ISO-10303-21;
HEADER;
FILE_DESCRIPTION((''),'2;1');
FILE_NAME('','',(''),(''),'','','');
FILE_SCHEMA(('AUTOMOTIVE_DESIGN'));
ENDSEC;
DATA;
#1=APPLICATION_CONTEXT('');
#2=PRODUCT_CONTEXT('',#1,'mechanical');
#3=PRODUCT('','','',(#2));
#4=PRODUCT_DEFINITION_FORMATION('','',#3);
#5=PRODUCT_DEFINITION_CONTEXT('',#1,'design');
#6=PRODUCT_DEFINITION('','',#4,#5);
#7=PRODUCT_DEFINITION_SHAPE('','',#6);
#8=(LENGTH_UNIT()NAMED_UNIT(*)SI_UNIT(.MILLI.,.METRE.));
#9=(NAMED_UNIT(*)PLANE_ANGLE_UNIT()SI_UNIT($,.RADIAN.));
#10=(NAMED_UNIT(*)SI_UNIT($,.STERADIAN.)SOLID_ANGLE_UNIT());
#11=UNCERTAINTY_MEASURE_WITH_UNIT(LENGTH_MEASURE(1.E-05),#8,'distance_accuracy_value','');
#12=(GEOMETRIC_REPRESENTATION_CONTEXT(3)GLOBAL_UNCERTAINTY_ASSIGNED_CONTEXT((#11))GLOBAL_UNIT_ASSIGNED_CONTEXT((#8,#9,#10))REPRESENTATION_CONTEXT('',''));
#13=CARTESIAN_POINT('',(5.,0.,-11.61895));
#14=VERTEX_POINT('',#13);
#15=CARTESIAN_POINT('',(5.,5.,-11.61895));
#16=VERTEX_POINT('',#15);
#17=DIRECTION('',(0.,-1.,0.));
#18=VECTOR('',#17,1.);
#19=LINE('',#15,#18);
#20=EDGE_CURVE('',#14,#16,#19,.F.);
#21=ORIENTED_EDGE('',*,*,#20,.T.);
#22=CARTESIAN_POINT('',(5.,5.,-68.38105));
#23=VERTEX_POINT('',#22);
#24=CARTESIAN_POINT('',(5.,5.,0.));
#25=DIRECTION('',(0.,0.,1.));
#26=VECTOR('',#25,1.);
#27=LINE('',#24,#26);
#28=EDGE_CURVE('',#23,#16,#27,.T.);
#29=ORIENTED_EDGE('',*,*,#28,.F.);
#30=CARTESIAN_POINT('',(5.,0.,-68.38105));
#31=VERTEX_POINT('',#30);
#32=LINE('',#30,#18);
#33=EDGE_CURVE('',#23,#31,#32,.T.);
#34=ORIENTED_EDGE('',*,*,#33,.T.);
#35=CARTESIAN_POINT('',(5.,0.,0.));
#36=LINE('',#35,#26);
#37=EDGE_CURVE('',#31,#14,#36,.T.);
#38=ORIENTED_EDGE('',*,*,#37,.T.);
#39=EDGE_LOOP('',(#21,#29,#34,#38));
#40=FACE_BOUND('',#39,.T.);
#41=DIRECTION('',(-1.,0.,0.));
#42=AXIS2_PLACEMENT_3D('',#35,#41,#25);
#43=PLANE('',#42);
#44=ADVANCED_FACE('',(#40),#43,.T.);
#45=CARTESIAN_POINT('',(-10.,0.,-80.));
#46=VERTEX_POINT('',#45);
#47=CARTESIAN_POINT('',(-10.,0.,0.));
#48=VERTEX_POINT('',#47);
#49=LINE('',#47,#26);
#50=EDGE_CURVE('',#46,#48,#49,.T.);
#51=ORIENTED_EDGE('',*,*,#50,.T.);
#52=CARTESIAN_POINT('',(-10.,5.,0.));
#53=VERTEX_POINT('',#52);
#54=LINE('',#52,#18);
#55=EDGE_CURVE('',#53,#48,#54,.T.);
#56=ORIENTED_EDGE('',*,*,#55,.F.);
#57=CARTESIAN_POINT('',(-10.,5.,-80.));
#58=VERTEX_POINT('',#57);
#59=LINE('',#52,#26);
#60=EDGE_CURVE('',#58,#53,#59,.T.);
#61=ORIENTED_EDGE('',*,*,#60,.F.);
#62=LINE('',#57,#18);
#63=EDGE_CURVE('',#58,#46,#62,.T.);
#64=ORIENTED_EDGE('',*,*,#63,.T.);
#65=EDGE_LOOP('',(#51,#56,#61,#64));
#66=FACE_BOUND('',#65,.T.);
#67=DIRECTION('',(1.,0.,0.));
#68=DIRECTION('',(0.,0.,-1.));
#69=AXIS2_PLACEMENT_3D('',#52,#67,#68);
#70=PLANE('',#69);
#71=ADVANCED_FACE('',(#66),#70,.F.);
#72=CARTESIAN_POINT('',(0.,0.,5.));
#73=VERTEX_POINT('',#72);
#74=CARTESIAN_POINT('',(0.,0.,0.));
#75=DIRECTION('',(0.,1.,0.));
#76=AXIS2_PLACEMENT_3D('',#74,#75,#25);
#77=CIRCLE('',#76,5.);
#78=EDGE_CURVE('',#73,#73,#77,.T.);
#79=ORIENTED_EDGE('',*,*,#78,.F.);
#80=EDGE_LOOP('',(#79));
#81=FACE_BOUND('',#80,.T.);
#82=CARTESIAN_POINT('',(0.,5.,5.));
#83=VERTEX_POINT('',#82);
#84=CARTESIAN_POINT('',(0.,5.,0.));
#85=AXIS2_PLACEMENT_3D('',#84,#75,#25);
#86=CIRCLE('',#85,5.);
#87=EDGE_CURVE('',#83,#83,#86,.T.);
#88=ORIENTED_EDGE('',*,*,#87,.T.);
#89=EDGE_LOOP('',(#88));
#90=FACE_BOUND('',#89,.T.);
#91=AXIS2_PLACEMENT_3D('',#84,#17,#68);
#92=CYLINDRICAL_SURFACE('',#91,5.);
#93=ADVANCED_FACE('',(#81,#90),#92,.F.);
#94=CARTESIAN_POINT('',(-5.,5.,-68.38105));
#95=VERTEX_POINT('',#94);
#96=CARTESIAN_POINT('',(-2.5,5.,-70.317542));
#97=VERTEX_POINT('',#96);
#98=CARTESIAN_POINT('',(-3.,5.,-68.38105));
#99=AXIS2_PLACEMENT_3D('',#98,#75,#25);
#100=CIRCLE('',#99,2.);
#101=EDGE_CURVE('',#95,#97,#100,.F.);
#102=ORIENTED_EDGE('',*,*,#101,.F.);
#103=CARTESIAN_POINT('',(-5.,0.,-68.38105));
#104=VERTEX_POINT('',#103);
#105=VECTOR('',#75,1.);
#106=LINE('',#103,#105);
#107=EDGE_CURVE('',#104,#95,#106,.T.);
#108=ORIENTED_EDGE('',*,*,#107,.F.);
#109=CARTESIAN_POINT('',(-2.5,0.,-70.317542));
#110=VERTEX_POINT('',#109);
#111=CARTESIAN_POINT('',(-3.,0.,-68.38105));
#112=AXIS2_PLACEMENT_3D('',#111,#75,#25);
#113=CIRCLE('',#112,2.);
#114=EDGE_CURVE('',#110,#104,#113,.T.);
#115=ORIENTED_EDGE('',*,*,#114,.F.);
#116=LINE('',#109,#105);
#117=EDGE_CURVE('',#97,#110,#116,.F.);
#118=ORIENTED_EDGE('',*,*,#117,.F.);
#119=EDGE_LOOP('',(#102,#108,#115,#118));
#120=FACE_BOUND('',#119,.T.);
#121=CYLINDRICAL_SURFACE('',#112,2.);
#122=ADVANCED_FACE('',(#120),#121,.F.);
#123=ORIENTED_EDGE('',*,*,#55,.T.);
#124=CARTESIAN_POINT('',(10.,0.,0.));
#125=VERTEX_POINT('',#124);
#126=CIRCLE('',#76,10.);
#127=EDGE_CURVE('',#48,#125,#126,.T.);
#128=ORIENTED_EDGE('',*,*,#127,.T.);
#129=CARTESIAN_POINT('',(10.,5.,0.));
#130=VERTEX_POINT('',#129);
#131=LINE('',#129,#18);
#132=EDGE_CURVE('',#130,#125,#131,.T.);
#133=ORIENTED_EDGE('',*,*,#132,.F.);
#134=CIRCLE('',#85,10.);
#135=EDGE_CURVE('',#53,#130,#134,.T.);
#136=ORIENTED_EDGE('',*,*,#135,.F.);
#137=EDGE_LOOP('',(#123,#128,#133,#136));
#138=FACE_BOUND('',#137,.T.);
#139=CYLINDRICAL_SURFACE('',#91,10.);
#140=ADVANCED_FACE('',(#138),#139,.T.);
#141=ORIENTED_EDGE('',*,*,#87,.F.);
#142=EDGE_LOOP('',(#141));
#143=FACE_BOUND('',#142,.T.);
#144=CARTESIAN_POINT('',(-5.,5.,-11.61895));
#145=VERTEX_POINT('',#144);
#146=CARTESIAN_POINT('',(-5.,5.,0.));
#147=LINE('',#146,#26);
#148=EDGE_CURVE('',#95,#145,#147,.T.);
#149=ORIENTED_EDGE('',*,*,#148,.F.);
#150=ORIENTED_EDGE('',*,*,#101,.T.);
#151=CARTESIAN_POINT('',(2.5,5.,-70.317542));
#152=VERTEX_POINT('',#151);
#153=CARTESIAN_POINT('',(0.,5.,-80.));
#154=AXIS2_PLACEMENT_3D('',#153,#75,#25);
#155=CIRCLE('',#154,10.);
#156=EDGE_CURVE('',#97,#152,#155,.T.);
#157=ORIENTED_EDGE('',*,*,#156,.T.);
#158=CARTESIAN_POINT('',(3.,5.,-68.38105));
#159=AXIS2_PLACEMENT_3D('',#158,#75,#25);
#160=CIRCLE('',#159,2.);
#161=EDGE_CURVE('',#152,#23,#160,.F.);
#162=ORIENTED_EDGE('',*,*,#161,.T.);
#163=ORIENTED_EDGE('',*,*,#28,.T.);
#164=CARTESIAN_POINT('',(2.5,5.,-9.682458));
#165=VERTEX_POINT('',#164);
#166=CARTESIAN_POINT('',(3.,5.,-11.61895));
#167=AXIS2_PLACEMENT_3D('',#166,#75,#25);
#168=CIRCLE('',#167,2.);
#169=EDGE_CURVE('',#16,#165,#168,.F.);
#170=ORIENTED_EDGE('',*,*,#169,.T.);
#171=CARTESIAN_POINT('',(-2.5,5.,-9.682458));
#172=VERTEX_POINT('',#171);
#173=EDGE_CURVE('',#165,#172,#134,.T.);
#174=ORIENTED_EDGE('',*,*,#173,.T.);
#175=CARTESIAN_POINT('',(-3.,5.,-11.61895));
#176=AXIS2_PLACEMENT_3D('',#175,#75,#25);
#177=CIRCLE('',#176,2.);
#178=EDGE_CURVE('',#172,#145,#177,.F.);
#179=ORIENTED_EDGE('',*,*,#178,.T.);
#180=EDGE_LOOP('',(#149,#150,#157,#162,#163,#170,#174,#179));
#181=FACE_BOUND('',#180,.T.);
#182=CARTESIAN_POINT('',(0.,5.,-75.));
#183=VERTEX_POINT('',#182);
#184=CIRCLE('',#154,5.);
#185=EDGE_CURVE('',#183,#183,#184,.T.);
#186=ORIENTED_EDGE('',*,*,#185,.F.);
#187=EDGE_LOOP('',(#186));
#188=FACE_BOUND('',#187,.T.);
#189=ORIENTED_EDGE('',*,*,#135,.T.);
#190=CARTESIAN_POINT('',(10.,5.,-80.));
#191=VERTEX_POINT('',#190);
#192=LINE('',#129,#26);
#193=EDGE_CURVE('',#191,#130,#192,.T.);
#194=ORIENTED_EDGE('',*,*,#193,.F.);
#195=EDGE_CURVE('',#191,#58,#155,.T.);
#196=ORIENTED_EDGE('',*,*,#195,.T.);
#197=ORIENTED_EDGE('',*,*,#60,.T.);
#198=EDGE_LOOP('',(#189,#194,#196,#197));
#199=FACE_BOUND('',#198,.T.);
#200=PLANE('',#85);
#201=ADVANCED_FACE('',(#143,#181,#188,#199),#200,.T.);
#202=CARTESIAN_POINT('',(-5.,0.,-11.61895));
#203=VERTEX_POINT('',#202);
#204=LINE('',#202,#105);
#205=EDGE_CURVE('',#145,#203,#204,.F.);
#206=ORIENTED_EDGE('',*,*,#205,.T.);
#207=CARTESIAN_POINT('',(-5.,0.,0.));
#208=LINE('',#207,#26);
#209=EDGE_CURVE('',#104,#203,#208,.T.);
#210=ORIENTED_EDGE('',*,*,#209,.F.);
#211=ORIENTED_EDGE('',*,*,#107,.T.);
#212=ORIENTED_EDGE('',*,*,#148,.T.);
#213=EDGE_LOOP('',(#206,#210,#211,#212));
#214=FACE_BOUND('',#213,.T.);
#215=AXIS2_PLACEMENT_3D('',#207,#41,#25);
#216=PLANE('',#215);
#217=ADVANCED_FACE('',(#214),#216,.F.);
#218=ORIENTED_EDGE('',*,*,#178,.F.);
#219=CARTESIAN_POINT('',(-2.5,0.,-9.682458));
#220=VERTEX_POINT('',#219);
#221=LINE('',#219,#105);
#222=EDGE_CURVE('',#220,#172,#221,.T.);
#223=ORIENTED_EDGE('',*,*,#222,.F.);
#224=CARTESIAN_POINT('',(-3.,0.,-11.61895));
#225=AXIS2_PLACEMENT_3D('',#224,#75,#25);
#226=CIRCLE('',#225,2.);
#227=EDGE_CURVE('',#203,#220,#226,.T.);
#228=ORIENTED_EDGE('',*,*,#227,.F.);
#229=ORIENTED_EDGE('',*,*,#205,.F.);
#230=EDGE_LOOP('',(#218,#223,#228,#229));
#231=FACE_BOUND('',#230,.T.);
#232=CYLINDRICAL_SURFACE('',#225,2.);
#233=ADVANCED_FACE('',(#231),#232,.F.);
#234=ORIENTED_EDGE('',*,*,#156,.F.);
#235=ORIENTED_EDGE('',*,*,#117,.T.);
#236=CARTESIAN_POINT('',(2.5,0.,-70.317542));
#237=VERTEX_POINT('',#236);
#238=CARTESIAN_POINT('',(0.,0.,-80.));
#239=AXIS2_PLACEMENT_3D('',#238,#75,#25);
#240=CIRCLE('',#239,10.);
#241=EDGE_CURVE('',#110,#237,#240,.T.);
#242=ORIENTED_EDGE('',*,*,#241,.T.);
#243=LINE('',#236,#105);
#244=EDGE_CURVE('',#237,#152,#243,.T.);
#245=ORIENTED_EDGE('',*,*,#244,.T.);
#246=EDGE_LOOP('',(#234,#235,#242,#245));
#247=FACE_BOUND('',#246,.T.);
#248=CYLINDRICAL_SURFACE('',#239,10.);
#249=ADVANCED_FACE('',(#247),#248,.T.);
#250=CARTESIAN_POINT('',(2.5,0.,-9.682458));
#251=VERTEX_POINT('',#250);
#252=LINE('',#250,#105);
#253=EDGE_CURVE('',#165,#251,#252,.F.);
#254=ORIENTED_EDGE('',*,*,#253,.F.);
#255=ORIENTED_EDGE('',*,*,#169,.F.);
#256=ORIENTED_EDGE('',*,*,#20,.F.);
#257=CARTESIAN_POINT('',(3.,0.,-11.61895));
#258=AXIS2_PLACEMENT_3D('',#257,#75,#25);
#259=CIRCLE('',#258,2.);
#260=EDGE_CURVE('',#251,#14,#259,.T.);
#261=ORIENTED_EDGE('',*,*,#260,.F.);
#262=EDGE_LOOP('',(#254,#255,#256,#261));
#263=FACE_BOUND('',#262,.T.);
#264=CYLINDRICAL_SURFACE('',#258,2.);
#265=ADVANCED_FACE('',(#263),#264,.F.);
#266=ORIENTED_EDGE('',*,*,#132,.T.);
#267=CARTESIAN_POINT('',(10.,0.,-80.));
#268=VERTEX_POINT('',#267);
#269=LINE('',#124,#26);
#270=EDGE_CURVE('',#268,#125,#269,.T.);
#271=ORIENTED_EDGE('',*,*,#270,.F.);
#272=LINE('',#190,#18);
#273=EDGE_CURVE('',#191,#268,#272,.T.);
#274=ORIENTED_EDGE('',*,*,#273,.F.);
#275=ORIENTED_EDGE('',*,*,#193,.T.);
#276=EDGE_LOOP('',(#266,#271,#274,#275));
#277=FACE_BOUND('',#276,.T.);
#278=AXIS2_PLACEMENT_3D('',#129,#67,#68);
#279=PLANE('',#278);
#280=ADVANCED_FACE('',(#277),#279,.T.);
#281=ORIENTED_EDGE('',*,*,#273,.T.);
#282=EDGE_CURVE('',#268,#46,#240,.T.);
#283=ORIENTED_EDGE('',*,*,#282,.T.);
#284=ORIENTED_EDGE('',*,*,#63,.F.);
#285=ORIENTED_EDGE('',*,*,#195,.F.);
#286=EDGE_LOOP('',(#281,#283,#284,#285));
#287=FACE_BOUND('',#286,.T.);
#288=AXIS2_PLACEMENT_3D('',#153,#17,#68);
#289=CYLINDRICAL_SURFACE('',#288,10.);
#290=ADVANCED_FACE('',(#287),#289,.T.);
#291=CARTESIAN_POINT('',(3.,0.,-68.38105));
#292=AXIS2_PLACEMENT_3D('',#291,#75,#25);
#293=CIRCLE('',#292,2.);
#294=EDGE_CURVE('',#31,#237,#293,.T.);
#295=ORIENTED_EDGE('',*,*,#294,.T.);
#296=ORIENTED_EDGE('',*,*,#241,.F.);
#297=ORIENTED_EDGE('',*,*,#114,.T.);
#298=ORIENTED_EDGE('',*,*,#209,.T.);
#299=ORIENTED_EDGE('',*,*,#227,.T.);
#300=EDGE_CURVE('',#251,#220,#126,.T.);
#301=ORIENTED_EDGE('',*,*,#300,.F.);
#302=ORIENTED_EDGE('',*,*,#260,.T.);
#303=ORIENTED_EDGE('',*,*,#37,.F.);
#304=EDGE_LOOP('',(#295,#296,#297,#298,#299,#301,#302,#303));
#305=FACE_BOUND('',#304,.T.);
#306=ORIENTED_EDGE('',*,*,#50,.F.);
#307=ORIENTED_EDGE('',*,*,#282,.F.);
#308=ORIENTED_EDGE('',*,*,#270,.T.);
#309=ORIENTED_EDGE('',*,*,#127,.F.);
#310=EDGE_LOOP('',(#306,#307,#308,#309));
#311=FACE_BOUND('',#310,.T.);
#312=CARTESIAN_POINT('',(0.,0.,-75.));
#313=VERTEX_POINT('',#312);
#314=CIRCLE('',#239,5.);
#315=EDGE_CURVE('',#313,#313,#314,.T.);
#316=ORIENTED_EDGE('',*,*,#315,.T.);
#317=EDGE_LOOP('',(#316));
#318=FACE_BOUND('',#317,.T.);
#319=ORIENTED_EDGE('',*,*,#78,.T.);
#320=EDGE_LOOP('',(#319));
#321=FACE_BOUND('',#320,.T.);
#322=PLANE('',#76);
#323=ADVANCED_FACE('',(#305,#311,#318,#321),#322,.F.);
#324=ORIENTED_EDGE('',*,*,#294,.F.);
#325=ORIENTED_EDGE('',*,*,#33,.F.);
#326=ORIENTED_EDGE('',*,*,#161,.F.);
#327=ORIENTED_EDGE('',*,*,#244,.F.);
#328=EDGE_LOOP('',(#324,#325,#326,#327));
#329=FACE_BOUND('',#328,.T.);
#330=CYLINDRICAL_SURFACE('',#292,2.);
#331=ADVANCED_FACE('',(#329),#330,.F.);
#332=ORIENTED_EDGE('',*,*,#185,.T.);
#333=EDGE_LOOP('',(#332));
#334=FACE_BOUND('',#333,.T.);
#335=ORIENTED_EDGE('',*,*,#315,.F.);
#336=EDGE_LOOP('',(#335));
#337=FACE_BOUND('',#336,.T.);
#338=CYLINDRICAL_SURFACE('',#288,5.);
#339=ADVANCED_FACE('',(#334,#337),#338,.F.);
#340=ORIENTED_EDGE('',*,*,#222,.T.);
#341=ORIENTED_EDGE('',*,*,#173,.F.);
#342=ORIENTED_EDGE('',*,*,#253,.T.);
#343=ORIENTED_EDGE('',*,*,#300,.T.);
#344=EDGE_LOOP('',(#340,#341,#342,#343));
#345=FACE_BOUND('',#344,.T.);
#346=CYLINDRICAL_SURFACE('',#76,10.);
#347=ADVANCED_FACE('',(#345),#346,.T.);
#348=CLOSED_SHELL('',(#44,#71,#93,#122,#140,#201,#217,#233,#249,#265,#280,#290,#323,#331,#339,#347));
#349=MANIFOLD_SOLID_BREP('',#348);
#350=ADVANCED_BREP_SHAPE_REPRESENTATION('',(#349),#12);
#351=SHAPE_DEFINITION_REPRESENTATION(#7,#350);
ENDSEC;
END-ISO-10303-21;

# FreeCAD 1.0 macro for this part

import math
import FreeCAD as App
import Part
import Sketcher
from FreeCAD import Vector


def edges_at(feature, points):
    """Names of the edges that pass closest to the given points."""
    edges = feature.Shape.Edges
    near = lambda p: min(range(len(edges)), key=lambda i: edges[i].distToShape(Part.Vertex(*p))[0])
    return sorted({f"Edge{near(p) + 1}" for p in points})

doc = App.newDocument("Part")
body = doc.addObject("PartDesign::Body", "Body")

# Sketch on XZ plane
sketch1 = body.newObject("Sketcher::SketchObject", "Sketch")
sketch1.AttachmentSupport = (doc.getObject("XZ_Plane"), [""])
sketch1.MapMode = "FlatFace"
sketch1.addGeometry([
    Part.LineSegment(Vector(-10, -80, 0), Vector(-10, 0, 0)),  # 0
    Part.ArcOfCircle(Part.Circle(Vector(0, 0, 0), Vector(0, 0, 1), 10), math.radians(0), math.radians(180)),  # 1
    Part.LineSegment(Vector(10, 0, 0), Vector(10, -80, 0)),  # 2
    Part.ArcOfCircle(Part.Circle(Vector(0, -80, 0), Vector(0, 0, 1), 10), math.radians(180), math.radians(360)),  # 3
    Part.Circle(Vector(0, 0, 0), Vector(0, 0, 1), 5),  # 4
    Part.Circle(Vector(0, -80, 0), Vector(0, 0, 1), 5),  # 5
], False)
sketch1.addConstraint([
    Sketcher.Constraint("Tangent", 0, 2, 1, 2),
    Sketcher.Constraint("Tangent", 1, 1, 2, 1),
    Sketcher.Constraint("Tangent", 2, 2, 3, 2),
    Sketcher.Constraint("Tangent", 3, 1, 0, 1),
    Sketcher.Constraint("Vertical", 0),
    Sketcher.Constraint("Vertical", 2),
    Sketcher.Constraint("Coincident", 1, 3, -1, 1),
    Sketcher.Constraint("Coincident", 4, 3, -1, 1),
    Sketcher.Constraint("Coincident", 5, 3, 3, 3),
    Sketcher.Constraint("Equal", 4, 5),
    Sketcher.Constraint("Diameter", 4, 10.0),
    Sketcher.Constraint("Radius", 1, 10.0),
    Sketcher.Constraint("DistanceY", 0, 1, 0, 2, 80.0),
])
pad1 = body.newObject("PartDesign::Pad", "Pad")
pad1.Profile = sketch1
pad1.Length = 5
pad1.Reversed = True

# Sketch on XZ plane
sketch2 = body.newObject("Sketcher::SketchObject", "Sketch001")
sketch2.AttachmentSupport = (doc.getObject("XZ_Plane"), [""])
sketch2.MapMode = "FlatFace"
sketch2.AttachmentOffset = App.Placement(Vector(0, 0, -5), App.Rotation())
sketch2.addGeometry([
    Part.ArcOfCircle(Part.Circle(Vector(0, -80, 0), Vector(0, 0, 1), 10), math.radians(60), math.radians(120)),
    Part.LineSegment(Vector(-5, -71, 0), Vector(-5, -9, 0)),
    Part.ArcOfCircle(Part.Circle(Vector(0, 0, 0), Vector(0, 0, 1), 10), math.radians(-120), math.radians(-60)),
    Part.LineSegment(Vector(5, -9, 0), Vector(5, -71, 0)),
], False)
sketch2.addConstraint([
    Sketcher.Constraint("Coincident", 0, 2, 1, 1),
    Sketcher.Constraint("Coincident", 1, 2, 2, 1),
    Sketcher.Constraint("Coincident", 2, 2, 3, 1),
    Sketcher.Constraint("Coincident", 3, 2, 0, 1),
    Sketcher.Constraint("Vertical", 1),
    Sketcher.Constraint("Vertical", 3),
    Sketcher.Constraint("Coincident", 2, 3, -1, 1),
    Sketcher.Constraint("Equal", 0, 2),
    Sketcher.Constraint("Symmetric", 0, 2, 3, 2, -2),
    Sketcher.Constraint("Radius", 0, 10.0),
    Sketcher.Constraint("DistanceY", 0, 3, -1, 1, 80.0),
    Sketcher.Constraint("DistanceX", 0, 2, -1, 1, 5.0),
])
pocket1 = body.newObject("PartDesign::Pocket", "Pocket")
pocket1.Profile = sketch2
pocket1.Type = "ThroughAll"
pocket1.Reversed = True
doc.recompute()

fillet = body.newObject("PartDesign::Fillet", "Fillet")
fillet.Base = (pocket1, edges_at(pocket1, [
    (-5, 2.5, -71.34),
    (5, 2.5, -71.34),
    (5, 2.5, -8.66),
    (-5, 2.5, -8.66),
]))
fillet.Radius = 2

doc.recompute()
